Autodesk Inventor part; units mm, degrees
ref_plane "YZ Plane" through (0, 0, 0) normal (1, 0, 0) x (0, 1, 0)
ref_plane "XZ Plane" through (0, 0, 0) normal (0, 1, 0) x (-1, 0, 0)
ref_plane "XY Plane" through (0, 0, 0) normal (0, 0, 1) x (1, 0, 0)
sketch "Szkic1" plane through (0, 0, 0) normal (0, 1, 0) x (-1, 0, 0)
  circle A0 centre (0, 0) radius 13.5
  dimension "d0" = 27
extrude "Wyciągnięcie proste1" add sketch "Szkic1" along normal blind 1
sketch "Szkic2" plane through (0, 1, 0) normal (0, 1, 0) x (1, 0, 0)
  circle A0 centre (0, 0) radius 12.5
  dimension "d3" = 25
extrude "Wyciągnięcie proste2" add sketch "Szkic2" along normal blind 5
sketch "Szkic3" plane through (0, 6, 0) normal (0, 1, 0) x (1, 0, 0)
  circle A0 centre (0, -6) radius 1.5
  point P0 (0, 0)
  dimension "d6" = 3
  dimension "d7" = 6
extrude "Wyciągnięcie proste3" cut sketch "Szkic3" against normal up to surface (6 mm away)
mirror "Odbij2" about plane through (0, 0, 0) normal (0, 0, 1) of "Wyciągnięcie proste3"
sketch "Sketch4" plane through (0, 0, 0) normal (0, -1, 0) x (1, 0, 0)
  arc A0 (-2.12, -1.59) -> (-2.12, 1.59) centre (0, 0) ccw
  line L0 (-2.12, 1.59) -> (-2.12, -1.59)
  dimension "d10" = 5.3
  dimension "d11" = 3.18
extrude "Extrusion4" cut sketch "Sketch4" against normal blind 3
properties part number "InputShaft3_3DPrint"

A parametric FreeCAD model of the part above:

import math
import FreeCAD as App
import Part
import Sketcher
Q = App.Units.Quantity

doc = App.newDocument("Part")
params = doc.addObject("Spreadsheet::Sheet", "Params")
for row, (alias, value) in enumerate([
    ("sketch1_diameter", "27 mm"),
    ("pad1_length", "1 mm"),
    ("sketch2_diameter", "25 mm"),
    ("pad2_length", "5 mm"),
    ("sketch3_diameter", "3 mm"),
    ("pocket1_length", "6 mm"),
    ("sketch4_radius", "2.65 mm"),
    ("sketch4_height", "3.18 mm"),
    ("pocket2_length", "3 mm"),
], start=1):
    params.set(f"A{row}", alias)
    params.set(f"B{row}", "=" + value)
    params.setAlias(f"B{row}", alias)

body = doc.addObject("PartDesign::Body", "Body")

sketch1 = body.newObject("Sketcher::SketchObject", "Sketch")
sketch1.AttachmentSupport = (doc.getObject("XZ_Plane"), [""])
sketch1.MapMode = "FlatFace"
sketch1.addGeometry(Part.Circle(App.Vector(0, 0, 0), App.Vector(0, 0, 1), 14), False)
sketch1.addConstraint(Sketcher.Constraint("Coincident", 0, 3, -1, 1))
sketch1.addConstraint(Sketcher.Constraint("Diameter", 0, Q("27 mm")))
sketch1.setExpression("Constraints[1]", "Params.sketch1_diameter")
pad1 = body.newObject("PartDesign::Pad", "Pad")
pad1.Profile = sketch1
pad1.setExpression("Length", "Params.pad1_length")
pad1.Reversed = True

sketch2 = body.newObject("Sketcher::SketchObject", "Sketch001")
sketch2.AttachmentSupport = (doc.getObject("XZ_Plane"), [""])
sketch2.MapMode = "FlatFace"
sketch2.AttachmentOffset = App.Placement(App.Vector(0, 0, -1), App.Rotation())
sketch2.addGeometry(Part.Circle(App.Vector(0, 0, 0), App.Vector(0, 0, 1), 12), False)
sketch2.addConstraint(Sketcher.Constraint("Coincident", 0, 3, -1, 1))
sketch2.addConstraint(Sketcher.Constraint("Diameter", 0, Q("25 mm")))
sketch2.setExpression("Constraints[1]", "Params.sketch2_diameter")
pad2 = body.newObject("PartDesign::Pad", "Pad001")
pad2.Profile = sketch2
pad2.setExpression("Length", "Params.pad2_length")
pad2.Reversed = True

sketch3 = body.newObject("Sketcher::SketchObject", "Sketch002")
sketch3.AttachmentSupport = (doc.getObject("XZ_Plane"), [""])
sketch3.MapMode = "FlatFace"
sketch3.AttachmentOffset = App.Placement(App.Vector(0, 0, -6), App.Rotation())
sketch3.addGeometry(Part.Circle(App.Vector(0, 6, 0), App.Vector(0, 0, 1), 1.5), False)
sketch3.addConstraint(Sketcher.Constraint("PointOnObject", 0, 3, -2))
sketch3.addConstraint(Sketcher.Constraint("Diameter", 0, Q("3 mm")))
sketch3.addConstraint(Sketcher.Constraint("DistanceY", -1, 1, 0, 3, Q("6 mm")))
sketch3.setExpression("Constraints[1]", "Params.sketch3_diameter")
pocket1 = body.newObject("PartDesign::Pocket", "Pocket")
pocket1.Profile = sketch3
pocket1.setExpression("Length", "Params.pocket1_length")
pocket1.Reversed = True
doc.recompute()

mirrored = body.newObject("PartDesign::Mirrored", "Mirrored")
mirrored.Originals = [pocket1]
mirrored.MirrorPlane = (doc.getObject("XY_Plane"), [""])
body.Tip = mirrored

sketch4 = body.newObject("Sketcher::SketchObject", "Sketch003")
sketch4.AttachmentSupport = (doc.getObject("XZ_Plane"), [""])
sketch4.MapMode = "FlatFace"
sketch4.addGeometry(Part.LineSegment(App.Vector(-2.1, 1.6, 0), App.Vector(-2.1, -1.6, 0)), False)
sketch4.addGeometry(Part.ArcOfCircle(Part.Circle(App.Vector(0, 0, 0), App.Vector(0, 0, 1), 2.7), math.radians(-143), math.radians(143)), False)
sketch4.addConstraint(Sketcher.Constraint("Coincident", 0, 1, 1, 2))
sketch4.addConstraint(Sketcher.Constraint("Coincident", 1, 1, 0, 2))
sketch4.addConstraint(Sketcher.Constraint("Vertical", 0))
sketch4.addConstraint(Sketcher.Constraint("Coincident", 1, 3, -1, 1))
sketch4.addConstraint(Sketcher.Constraint("Radius", 1, Q("2.65 mm")))
sketch4.addConstraint(Sketcher.Constraint("DistanceY", 0, 2, 0, 1, Q("3.18 mm")))
sketch4.setExpression("Constraints[4]", "Params.sketch4_radius")
sketch4.setExpression("Constraints[5]", "Params.sketch4_height")
pocket2 = body.newObject("PartDesign::Pocket", "Pocket001")
pocket2.Profile = sketch4
pocket2.setExpression("Length", "Params.pocket2_length")

doc.recompute()
